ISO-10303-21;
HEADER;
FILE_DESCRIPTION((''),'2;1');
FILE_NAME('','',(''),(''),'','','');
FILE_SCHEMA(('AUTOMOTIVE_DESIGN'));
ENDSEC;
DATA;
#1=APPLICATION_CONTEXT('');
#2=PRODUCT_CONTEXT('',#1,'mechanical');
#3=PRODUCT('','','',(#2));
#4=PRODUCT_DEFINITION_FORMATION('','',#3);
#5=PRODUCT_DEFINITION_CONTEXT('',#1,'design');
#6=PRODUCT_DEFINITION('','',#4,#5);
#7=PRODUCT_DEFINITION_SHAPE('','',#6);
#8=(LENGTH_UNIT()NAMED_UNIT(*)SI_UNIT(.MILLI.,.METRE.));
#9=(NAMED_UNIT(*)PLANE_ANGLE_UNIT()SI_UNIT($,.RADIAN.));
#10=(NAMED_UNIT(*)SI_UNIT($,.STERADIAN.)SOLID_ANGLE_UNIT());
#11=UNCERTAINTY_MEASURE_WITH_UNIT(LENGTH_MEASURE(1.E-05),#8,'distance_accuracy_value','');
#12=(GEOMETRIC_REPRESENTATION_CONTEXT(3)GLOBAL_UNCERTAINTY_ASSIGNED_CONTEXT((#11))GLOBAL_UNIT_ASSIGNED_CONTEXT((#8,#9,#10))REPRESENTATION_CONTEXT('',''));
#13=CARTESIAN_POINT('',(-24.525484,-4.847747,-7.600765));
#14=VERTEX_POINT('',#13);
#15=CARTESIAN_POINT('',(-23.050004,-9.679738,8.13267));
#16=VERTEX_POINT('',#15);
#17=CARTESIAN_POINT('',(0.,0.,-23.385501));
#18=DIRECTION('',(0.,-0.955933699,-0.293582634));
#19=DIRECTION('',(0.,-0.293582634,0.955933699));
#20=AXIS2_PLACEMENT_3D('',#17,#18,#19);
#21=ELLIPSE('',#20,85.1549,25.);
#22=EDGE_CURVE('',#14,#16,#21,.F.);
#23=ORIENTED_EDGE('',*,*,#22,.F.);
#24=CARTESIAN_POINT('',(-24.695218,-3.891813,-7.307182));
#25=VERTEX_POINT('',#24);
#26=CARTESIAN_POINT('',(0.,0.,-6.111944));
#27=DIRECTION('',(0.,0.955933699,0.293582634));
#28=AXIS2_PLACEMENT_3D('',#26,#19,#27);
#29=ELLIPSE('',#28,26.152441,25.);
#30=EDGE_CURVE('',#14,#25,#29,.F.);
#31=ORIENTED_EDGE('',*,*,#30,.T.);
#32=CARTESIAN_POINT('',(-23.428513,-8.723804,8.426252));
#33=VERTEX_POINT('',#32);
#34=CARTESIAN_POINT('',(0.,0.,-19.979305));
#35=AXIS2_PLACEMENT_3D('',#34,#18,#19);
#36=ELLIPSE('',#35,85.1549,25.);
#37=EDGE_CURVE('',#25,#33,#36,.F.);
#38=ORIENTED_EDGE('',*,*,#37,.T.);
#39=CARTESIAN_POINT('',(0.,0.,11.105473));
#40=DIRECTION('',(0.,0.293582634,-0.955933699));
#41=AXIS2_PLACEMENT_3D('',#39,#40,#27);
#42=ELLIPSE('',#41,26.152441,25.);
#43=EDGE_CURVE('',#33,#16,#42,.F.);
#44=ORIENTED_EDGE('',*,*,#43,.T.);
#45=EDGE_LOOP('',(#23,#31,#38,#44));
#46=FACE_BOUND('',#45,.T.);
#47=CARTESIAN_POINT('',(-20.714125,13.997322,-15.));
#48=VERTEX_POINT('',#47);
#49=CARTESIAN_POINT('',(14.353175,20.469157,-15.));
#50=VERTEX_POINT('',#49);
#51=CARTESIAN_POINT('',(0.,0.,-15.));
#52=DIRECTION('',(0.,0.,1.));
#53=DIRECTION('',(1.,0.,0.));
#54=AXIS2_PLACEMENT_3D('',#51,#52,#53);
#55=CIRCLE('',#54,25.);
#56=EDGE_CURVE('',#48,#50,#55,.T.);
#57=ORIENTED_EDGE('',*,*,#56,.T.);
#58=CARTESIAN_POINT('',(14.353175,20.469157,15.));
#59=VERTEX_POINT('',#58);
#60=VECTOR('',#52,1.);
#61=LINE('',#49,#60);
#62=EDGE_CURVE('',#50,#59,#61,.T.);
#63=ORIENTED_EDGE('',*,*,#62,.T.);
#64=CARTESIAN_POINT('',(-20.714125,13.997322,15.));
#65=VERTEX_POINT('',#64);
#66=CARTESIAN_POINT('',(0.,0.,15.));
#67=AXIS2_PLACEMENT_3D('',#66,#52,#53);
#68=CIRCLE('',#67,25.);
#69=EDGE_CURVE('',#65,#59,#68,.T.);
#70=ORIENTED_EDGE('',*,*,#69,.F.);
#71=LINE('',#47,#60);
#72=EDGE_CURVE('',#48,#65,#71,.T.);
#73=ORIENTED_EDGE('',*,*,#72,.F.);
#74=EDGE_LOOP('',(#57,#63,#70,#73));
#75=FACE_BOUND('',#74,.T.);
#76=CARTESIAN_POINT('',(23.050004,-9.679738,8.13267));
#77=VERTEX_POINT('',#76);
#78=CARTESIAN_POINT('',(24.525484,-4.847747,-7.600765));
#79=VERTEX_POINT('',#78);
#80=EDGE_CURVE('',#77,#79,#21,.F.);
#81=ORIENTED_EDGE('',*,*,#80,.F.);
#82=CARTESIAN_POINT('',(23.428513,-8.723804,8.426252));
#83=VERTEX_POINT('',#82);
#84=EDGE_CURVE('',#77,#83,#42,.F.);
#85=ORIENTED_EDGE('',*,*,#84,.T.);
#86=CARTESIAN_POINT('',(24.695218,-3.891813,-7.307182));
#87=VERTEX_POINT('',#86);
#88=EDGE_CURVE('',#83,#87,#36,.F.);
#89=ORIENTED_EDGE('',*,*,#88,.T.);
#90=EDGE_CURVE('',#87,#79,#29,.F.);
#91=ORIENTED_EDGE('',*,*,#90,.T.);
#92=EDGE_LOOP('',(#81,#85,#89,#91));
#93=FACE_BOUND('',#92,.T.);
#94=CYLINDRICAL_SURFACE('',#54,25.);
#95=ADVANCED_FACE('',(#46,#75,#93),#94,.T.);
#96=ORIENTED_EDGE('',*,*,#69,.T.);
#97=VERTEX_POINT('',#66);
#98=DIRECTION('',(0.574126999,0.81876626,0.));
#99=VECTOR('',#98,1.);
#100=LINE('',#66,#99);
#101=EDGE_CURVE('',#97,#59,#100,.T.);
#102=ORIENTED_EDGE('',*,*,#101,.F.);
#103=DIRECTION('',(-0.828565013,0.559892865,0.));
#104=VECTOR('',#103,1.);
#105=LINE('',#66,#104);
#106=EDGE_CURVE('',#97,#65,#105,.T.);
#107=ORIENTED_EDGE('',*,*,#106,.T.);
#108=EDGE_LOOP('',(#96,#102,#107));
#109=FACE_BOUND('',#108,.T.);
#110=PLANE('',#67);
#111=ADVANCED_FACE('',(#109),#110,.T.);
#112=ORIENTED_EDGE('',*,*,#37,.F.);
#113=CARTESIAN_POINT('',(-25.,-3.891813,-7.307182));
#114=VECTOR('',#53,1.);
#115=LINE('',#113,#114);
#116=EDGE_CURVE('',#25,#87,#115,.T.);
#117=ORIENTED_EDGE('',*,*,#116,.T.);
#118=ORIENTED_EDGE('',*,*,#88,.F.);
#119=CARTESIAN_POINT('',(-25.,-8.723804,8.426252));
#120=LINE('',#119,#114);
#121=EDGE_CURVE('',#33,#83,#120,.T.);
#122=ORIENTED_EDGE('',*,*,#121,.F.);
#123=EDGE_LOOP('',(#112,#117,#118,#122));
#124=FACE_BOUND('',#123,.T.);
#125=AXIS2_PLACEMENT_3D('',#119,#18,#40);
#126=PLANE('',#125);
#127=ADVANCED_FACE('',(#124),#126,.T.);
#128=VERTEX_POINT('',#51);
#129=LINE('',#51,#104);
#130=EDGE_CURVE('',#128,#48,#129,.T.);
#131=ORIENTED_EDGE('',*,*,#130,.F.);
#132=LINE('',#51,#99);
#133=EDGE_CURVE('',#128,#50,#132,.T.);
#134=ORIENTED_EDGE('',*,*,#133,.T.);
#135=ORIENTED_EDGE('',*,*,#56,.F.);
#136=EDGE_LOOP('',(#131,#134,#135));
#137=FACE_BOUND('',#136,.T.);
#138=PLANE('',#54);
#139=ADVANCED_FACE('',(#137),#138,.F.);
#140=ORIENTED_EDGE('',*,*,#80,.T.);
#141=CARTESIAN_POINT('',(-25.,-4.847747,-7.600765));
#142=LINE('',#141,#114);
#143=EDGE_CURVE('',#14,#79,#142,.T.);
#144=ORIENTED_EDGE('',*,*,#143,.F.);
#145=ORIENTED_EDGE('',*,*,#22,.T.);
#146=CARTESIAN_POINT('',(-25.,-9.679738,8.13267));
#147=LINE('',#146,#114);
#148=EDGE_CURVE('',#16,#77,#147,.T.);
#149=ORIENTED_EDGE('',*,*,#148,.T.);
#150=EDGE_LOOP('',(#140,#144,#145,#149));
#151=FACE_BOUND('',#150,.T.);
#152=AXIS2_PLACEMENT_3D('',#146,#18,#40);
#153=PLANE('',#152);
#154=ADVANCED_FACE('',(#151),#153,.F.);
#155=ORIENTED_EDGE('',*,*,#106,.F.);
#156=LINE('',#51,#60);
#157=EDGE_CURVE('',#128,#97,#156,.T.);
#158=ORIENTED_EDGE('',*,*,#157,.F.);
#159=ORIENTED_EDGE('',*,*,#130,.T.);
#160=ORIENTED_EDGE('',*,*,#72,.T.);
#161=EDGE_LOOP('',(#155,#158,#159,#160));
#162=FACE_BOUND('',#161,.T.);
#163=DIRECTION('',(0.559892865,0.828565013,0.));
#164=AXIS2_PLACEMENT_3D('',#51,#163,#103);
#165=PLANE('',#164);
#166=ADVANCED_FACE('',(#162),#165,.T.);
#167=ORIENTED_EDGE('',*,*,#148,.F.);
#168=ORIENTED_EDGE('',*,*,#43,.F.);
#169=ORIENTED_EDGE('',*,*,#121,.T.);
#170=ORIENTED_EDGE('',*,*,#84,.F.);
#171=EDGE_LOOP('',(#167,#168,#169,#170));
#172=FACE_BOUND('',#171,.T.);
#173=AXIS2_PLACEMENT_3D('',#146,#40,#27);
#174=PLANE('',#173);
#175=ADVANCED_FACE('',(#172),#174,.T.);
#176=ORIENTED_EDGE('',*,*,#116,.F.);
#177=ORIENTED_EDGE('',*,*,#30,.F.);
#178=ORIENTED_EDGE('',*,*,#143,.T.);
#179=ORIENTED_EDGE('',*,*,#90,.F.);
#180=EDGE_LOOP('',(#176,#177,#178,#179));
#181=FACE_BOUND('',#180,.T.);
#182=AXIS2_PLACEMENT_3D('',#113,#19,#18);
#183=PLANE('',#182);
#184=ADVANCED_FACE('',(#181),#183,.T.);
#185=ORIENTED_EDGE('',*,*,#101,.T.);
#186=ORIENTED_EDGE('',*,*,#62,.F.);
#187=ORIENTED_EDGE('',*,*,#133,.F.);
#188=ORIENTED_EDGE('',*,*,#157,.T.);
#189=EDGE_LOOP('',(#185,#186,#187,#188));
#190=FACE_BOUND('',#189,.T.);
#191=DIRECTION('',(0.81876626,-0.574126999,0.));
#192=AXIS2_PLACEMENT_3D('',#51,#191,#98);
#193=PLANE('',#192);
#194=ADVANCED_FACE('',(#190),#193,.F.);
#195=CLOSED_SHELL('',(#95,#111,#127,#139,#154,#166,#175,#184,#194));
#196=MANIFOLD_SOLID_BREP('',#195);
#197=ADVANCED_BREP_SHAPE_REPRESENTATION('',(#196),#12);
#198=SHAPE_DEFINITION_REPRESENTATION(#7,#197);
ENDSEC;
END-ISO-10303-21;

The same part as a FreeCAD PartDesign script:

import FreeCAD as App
import Part
import Sketcher

V = App.Vector
Q = App.Units.Quantity

doc = App.newDocument("Part")
params = doc.addObject("Spreadsheet::Sheet", "Params")
for row, (alias, value) in enumerate([
    ("sketch1_diameter", "50 mm"),
    ("pad1_length", "30 mm"),
    ("sketch2_length", "25 mm"),
    ("pocket1_length", "30 mm"),
    ("sketch3_length", "1 mm"),
], start=1):
    params.set(f"A{row}", alias)
    params.set(f"B{row}", "=" + value)
    params.setAlias(f"B{row}", alias)

body = doc.addObject("PartDesign::Body", "Body")

# Sketch on XY plane
sketch1 = body.newObject("Sketcher::SketchObject", "Sketch")
sketch1.AttachmentSupport = (doc.getObject("XY_Plane"), [""])
sketch1.MapMode = "FlatFace"
sketch1.addGeometry(Part.Circle(V(0, 0, 0), V(0, 0, 1), 25), False)
sketch1.addConstraint([
    Sketcher.Constraint("Coincident", 0, 3, -1, 1),
    Sketcher.Constraint("Diameter", 0, Q("50 mm")),
])
sketch1.setExpression("Constraints[1]", "Params.sketch1_diameter")
pad1 = body.newObject("PartDesign::Pad", "Pad")
pad1.Profile = sketch1
pad1.setExpression("Length", "Params.pad1_length")
pad1.Midplane = True

# Sketch on XY plane
sketch2 = body.newObject("Sketcher::SketchObject", "Sketch001")
sketch2.AttachmentSupport = (doc.getObject("XY_Plane"), [""])
sketch2.MapMode = "FlatFace"
sketch2.AttachmentOffset = App.Placement(V(0, 0, 15), App.Rotation())
sketch2.addGeometry([
    Part.LineSegment(V(-128.649889, 86.933619, 0), V(-20.714125, 13.997322, 0)),  # 0
    Part.LineSegment(V(-20.714125, 13.997322, 0), V(0, 0, 0)),  # 1
    Part.LineSegment(V(0, 0, 0), V(14.353175, 20.469157, 0)),  # 2
    Part.LineSegment(V(14.353175, 20.469157, 0), V(89.143729, 127.128453, 0)),  # 3
    Part.LineSegment(V(89.143729, 127.128453, 0), V(41.858999, 383.338297, 0)),  # 4
    Part.LineSegment(V(41.858999, 383.338297, 0), V(-175.934618, 343.143463, 0)),  # 5
    Part.LineSegment(V(-175.934618, 343.143463, 0), V(-128.649889, 86.933619, 0)),  # 6
], False)
sketch2.addConstraint([
    Sketcher.Constraint("Coincident", 0, 2, 1, 1),
    Sketcher.Constraint("Coincident", 1, 2, 2, 1),
    Sketcher.Constraint("Coincident", 2, 2, 3, 1),
    Sketcher.Constraint("Coincident", 3, 2, 4, 1),
    Sketcher.Constraint("Coincident", 4, 2, 5, 1),
    Sketcher.Constraint("Coincident", 5, 2, 6, 1),
    Sketcher.Constraint("Coincident", 6, 2, 0, 1),
    Sketcher.Constraint("Coincident", 1, 2, -1, 1),
    Sketcher.Constraint("Parallel", 0, 1),
    Sketcher.Constraint("Parallel", 2, 3),
    Sketcher.Constraint("Perpendicular", 4, 5),
    Sketcher.Constraint("Perpendicular", 5, 6),
    Sketcher.Constraint("Equal", 1, 2),
    Sketcher.Constraint("Equal", 0, 3),
    Sketcher.Constraint("Equal", 4, 6),
    Sketcher.Constraint("Distance", 1, Q("25 mm")),
    Sketcher.Constraint("DistanceX", -1, 1, 4, 2, Q("41.858999 mm")),
    Sketcher.Constraint("DistanceX", 0, 2, 2, 2, Q("35.0673 mm")),
    Sketcher.Constraint("Distance", 0, Q("130.26831 mm")),
    Sketcher.Constraint("Distance", 4, Q("260.536619 mm")),
])
sketch2.setExpression("Constraints[15]", "Params.sketch2_length")
pocket1 = body.newObject("PartDesign::Pocket", "Pocket")
pocket1.Profile = sketch2
pocket1.setExpression("Length", "Params.pocket1_length")

# Sketch on YZ plane
sketch3 = body.newObject("Sketcher::SketchObject", "Sketch002")
sketch3.AttachmentSupport = (doc.getObject("YZ_Plane"), [""])
sketch3.MapMode = "FlatFace"
sketch3.addGeometry([
    Part.LineSegment(V(-9.679738, 8.13267, 0), V(-4.847747, -7.600765, 0)),
    Part.LineSegment(V(-4.847747, -7.600765, 0), V(-3.891813, -7.307182, 0)),
    Part.LineSegment(V(-3.891813, -7.307182, 0), V(-8.723804, 8.426252, 0)),
    Part.LineSegment(V(-8.723804, 8.426252, 0), V(-9.679738, 8.13267, 0)),
], False)
sketch3.addConstraint([
    Sketcher.Constraint("Coincident", 0, 2, 1, 1),
    Sketcher.Constraint("Coincident", 1, 2, 2, 1),
    Sketcher.Constraint("Coincident", 2, 2, 3, 1),
    Sketcher.Constraint("Coincident", 3, 2, 0, 1),
    Sketcher.Constraint("Perpendicular", 0, 1),
    Sketcher.Constraint("Perpendicular", 1, 2),
    Sketcher.Constraint("Perpendicular", 2, 3),
    Sketcher.Constraint("Distance", 1, Q("1 mm")),
    Sketcher.Constraint("Distance", 0, Q("16.458709 mm")),
    Sketcher.Constraint("DistanceY", -1, 1, 3, 2, Q("8.13267 mm")),
    Sketcher.Constraint("DistanceX", 2, 2, 1, 2, Q("4.831991 mm")),
    Sketcher.Constraint("DistanceX", 0, 2, -1, 1, Q("4.847747 mm")),
])
sketch3.setExpression("Constraints[7]", "Params.sketch3_length")
pocket2 = body.newObject("PartDesign::Pocket", "Pocket001")
pocket2.Profile = sketch3
pocket2.Type = "ThroughAll"
pocket2.Midplane = True

doc.recompute()
